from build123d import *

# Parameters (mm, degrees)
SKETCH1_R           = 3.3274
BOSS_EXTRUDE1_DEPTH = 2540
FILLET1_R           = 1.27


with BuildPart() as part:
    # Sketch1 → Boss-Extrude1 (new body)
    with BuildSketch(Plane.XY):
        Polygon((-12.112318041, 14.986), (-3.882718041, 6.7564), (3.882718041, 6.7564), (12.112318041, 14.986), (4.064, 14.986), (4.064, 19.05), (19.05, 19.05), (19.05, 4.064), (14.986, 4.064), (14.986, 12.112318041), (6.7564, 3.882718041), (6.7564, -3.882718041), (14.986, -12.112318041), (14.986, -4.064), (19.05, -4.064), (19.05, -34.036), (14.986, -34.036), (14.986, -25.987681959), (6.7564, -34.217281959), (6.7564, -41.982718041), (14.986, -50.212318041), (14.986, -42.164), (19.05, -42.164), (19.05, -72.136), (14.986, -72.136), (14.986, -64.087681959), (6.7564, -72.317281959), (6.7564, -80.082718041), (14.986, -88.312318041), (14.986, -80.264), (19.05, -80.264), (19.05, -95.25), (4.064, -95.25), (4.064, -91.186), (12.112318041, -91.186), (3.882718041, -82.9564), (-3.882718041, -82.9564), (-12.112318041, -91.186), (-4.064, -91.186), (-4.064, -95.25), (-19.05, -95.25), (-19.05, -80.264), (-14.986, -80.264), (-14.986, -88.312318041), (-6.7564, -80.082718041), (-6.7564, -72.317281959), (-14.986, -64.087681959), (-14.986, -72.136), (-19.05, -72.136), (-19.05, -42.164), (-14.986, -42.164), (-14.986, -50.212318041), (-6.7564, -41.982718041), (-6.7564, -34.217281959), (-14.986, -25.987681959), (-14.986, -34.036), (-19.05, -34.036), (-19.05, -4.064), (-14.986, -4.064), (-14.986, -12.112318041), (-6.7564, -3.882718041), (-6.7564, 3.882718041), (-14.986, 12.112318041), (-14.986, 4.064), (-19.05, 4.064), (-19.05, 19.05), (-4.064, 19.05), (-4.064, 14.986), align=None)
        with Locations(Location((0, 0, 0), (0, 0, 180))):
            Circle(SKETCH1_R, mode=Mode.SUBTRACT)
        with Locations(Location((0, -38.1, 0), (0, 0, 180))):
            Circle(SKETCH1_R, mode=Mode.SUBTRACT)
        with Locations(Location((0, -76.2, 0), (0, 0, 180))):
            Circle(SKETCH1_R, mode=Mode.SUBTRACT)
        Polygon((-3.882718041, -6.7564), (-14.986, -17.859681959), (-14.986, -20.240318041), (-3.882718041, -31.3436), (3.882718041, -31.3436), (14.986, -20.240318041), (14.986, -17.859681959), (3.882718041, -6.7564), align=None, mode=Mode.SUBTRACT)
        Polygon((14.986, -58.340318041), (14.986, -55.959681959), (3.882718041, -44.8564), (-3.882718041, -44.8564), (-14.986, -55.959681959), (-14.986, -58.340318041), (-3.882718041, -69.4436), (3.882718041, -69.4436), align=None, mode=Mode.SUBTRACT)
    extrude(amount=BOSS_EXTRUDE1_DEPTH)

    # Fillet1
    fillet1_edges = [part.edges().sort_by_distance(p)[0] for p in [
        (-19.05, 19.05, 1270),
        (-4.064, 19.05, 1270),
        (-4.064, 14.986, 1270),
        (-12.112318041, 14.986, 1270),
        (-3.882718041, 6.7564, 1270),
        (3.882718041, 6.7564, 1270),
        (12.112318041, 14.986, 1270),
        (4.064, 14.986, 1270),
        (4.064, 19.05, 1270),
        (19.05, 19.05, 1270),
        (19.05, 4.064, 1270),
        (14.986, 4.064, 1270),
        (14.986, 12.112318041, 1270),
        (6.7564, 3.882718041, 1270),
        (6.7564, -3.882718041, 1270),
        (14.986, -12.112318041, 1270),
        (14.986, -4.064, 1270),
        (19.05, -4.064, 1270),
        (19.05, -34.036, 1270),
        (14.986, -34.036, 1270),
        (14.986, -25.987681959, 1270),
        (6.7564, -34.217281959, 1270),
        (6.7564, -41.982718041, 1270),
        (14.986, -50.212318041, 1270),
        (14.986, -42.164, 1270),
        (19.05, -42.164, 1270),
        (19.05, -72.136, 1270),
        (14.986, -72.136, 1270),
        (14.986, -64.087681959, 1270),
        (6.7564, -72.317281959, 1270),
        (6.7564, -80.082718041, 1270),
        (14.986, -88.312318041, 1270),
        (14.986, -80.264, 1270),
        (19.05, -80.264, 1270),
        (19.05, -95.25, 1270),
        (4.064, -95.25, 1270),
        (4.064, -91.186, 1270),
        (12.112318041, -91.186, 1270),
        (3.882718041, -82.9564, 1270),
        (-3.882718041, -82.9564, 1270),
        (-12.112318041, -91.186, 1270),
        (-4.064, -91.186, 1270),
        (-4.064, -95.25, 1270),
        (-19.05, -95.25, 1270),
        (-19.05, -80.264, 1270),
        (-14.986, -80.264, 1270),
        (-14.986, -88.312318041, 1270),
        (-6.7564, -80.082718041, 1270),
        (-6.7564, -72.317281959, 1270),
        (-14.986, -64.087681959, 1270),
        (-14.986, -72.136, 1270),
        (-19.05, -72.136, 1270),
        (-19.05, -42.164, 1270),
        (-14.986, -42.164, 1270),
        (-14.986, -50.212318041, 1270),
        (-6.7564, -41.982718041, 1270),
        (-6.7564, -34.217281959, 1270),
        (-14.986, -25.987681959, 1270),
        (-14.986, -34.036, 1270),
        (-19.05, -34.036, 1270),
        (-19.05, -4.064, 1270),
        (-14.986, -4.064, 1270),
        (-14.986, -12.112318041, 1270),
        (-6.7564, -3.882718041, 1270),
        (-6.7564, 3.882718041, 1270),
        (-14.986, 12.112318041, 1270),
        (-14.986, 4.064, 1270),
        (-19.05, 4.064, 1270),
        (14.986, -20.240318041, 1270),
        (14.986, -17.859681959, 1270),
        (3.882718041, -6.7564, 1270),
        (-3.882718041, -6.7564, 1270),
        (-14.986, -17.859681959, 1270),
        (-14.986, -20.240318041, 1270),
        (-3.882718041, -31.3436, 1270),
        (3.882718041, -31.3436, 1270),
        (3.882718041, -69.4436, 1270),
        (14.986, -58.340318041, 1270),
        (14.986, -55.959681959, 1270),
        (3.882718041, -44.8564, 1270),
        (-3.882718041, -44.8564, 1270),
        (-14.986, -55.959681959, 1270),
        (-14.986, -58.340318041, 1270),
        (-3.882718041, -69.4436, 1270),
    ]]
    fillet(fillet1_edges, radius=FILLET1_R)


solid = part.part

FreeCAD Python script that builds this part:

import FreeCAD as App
import Part
import Sketcher
from FreeCAD import Vector
Q = App.Units.Quantity


def edges_at(feature, points):
    """Names of the edges that pass closest to the given points."""
    edges = feature.Shape.Edges
    near = lambda p: min(range(len(edges)), key=lambda i: edges[i].distToShape(Part.Vertex(*p))[0])
    return sorted({f"Edge{near(p) + 1}" for p in points})

doc = App.newDocument("Part")
params = doc.addObject("Spreadsheet::Sheet", "Params")
for row, (alias, value) in enumerate([
    ("sketch1_diameter", "0.262 in"),
    ("sketch1_width", "0.59 in"),
    ("sketch1_width2", "0.16 in"),
    ("sketch1_height", "1.18 in"),
    ("pad1_length", "100 in"),
    ("fillet_radius", "0.05 in"),
], start=1):
    params.set(f"A{row}", alias)
    params.set(f"B{row}", "=" + value)
    params.setAlias(f"B{row}", alias)

body = doc.addObject("PartDesign::Body", "Body")

sketch1 = doc.addObject("Sketcher::SketchObject", "Sketch")
body.addObject(sketch1)
sketch1.AttachmentSupport = (doc.XY_Plane, [""])
sketch1.MapMode = "FlatFace"
sketch1.addGeometry(Part.LineSegment(Vector(-3.882718, 6.7564, 0), Vector(-12.112318, 14.986, 0)), False)
sketch1.addGeometry(Part.LineSegment(Vector(-12.112318, 14.986, 0), Vector(-4.064, 14.986, 0)), False)
sketch1.addGeometry(Part.LineSegment(Vector(-4.064, 14.986, 0), Vector(-4.064, 19.05, 0)), False)
sketch1.addGeometry(Part.LineSegment(Vector(-4.064, 19.05, 0), Vector(-19.05, 19.05, 0)), False)
sketch1.addGeometry(Part.LineSegment(Vector(-19.05, 19.05, 0), Vector(-19.05, 4.064, 0)), False)
sketch1.addGeometry(Part.LineSegment(Vector(-19.05, 4.064, 0), Vector(-14.986, 4.064, 0)), False)
sketch1.addGeometry(Part.LineSegment(Vector(-14.986, 4.064, 0), Vector(-14.986, 12.112318, 0)), False)
sketch1.addGeometry(Part.LineSegment(Vector(-14.986, 12.112318, 0), Vector(-6.7564, 3.882718, 0)), False)
sketch1.addGeometry(Part.LineSegment(Vector(-6.7564, 3.882718, 0), Vector(-6.7564, -3.882718, 0)), False)
sketch1.addGeometry(Part.LineSegment(Vector(-6.7564, -3.882718, 0), Vector(-14.986, -12.112318, 0)), False)
sketch1.addGeometry(Part.LineSegment(Vector(-14.986, -12.112318, 0), Vector(-14.986, -4.064, 0)), False)
sketch1.addGeometry(Part.LineSegment(Vector(-14.986, -4.064, 0), Vector(-19.05, -4.064, 0)), False)
sketch1.addGeometry(Part.LineSegment(Vector(-19.05, -4.064, 0), Vector(-19.05, -34.036, 0)), False)
sketch1.addGeometry(Part.LineSegment(Vector(-19.05, -34.036, 0), Vector(-14.986, -34.036, 0)), False)
sketch1.addGeometry(Part.LineSegment(Vector(-14.986, -34.036, 0), Vector(-14.986, -25.987682, 0)), False)
sketch1.addGeometry(Part.LineSegment(Vector(-14.986, -25.987682, 0), Vector(-6.7564, -34.217282, 0)), False)
sketch1.addGeometry(Part.LineSegment(Vector(-6.7564, -34.217282, 0), Vector(-6.7564, -41.982718, 0)), False)
sketch1.addGeometry(Part.LineSegment(Vector(-6.7564, -41.982718, 0), Vector(-14.986, -50.212318, 0)), False)
sketch1.addGeometry(Part.LineSegment(Vector(-14.986, -50.212318, 0), Vector(-14.986, -42.164, 0)), False)
sketch1.addGeometry(Part.LineSegment(Vector(-14.986, -42.164, 0), Vector(-19.05, -42.164, 0)), False)
sketch1.addGeometry(Part.LineSegment(Vector(-19.05, -42.164, 0), Vector(-19.05, -72.136, 0)), False)
sketch1.addGeometry(Part.LineSegment(Vector(-19.05, -72.136, 0), Vector(-14.986, -72.136, 0)), False)
sketch1.addGeometry(Part.LineSegment(Vector(-14.986, -72.136, 0), Vector(-14.986, -64.087682, 0)), False)
sketch1.addGeometry(Part.LineSegment(Vector(-14.986, -64.087682, 0), Vector(-6.7564, -72.317282, 0)), False)
sketch1.addGeometry(Part.LineSegment(Vector(-6.7564, -72.317282, 0), Vector(-6.7564, -80.082718, 0)), False)
sketch1.addGeometry(Part.LineSegment(Vector(-6.7564, -80.082718, 0), Vector(-14.986, -88.312318, 0)), False)
sketch1.addGeometry(Part.LineSegment(Vector(-14.986, -88.312318, 0), Vector(-14.986, -80.264, 0)), False)
sketch1.addGeometry(Part.LineSegment(Vector(-14.986, -80.264, 0), Vector(-19.05, -80.264, 0)), False)
sketch1.addGeometry(Part.LineSegment(Vector(-19.05, -80.264, 0), Vector(-19.05, -95.25, 0)), False)
sketch1.addGeometry(Part.LineSegment(Vector(-19.05, -95.25, 0), Vector(-4.064, -95.25, 0)), False)
sketch1.addGeometry(Part.LineSegment(Vector(-4.064, -95.25, 0), Vector(-4.064, -91.186, 0)), False)
sketch1.addGeometry(Part.LineSegment(Vector(-4.064, -91.186, 0), Vector(-12.112318, -91.186, 0)), False)
sketch1.addGeometry(Part.LineSegment(Vector(-12.112318, -91.186, 0), Vector(-3.882718, -82.9564, 0)), False)
sketch1.addGeometry(Part.LineSegment(Vector(-3.882718, -82.9564, 0), Vector(3.882718, -82.9564, 0)), False)
sketch1.addGeometry(Part.LineSegment(Vector(3.882718, -82.9564, 0), Vector(12.112318, -91.186, 0)), False)
sketch1.addGeometry(Part.LineSegment(Vector(12.112318, -91.186, 0), Vector(4.064, -91.186, 0)), False)
sketch1.addGeometry(Part.LineSegment(Vector(4.064, -91.186, 0), Vector(4.064, -95.25, 0)), False)
sketch1.addGeometry(Part.LineSegment(Vector(4.064, -95.25, 0), Vector(19.05, -95.25, 0)), False)
sketch1.addGeometry(Part.LineSegment(Vector(19.05, -95.25, 0), Vector(19.05, -80.264, 0)), False)
sketch1.addGeometry(Part.LineSegment(Vector(19.05, -80.264, 0), Vector(14.986, -80.264, 0)), False)
sketch1.addGeometry(Part.LineSegment(Vector(14.986, -80.264, 0), Vector(14.986, -88.312318, 0)), False)
sketch1.addGeometry(Part.LineSegment(Vector(14.986, -88.312318, 0), Vector(6.7564, -80.082718, 0)), False)
sketch1.addGeometry(Part.LineSegment(Vector(6.7564, -80.082718, 0), Vector(6.7564, -72.317282, 0)), False)
sketch1.addGeometry(Part.LineSegment(Vector(6.7564, -72.317282, 0), Vector(14.986, -64.087682, 0)), False)
sketch1.addGeometry(Part.LineSegment(Vector(14.986, -64.087682, 0), Vector(14.986, -72.136, 0)), False)
sketch1.addGeometry(Part.LineSegment(Vector(14.986, -72.136, 0), Vector(19.05, -72.136, 0)), False)
sketch1.addGeometry(Part.LineSegment(Vector(19.05, -72.136, 0), Vector(19.05, -42.164, 0)), False)
sketch1.addGeometry(Part.LineSegment(Vector(19.05, -42.164, 0), Vector(14.986, -42.164, 0)), False)
sketch1.addGeometry(Part.LineSegment(Vector(14.986, -42.164, 0), Vector(14.986, -50.212318, 0)), False)
sketch1.addGeometry(Part.LineSegment(Vector(14.986, -50.212318, 0), Vector(6.7564, -41.982718, 0)), False)
sketch1.addGeometry(Part.LineSegment(Vector(6.7564, -41.982718, 0), Vector(6.7564, -34.217282, 0)), False)
sketch1.addGeometry(Part.LineSegment(Vector(6.7564, -34.217282, 0), Vector(14.986, -25.987682, 0)), False)
sketch1.addGeometry(Part.LineSegment(Vector(14.986, -25.987682, 0), Vector(14.986, -34.036, 0)), False)
sketch1.addGeometry(Part.LineSegment(Vector(14.986, -34.036, 0), Vector(19.05, -34.036, 0)), False)
sketch1.addGeometry(Part.LineSegment(Vector(19.05, -34.036, 0), Vector(19.05, -4.064, 0)), False)
sketch1.addGeometry(Part.LineSegment(Vector(19.05, -4.064, 0), Vector(14.986, -4.064, 0)), False)
sketch1.addGeometry(Part.LineSegment(Vector(14.986, -4.064, 0), Vector(14.986, -12.112318, 0)), False)
sketch1.addGeometry(Part.LineSegment(Vector(14.986, -12.112318, 0), Vector(6.7564, -3.882718, 0)), False)
sketch1.addGeometry(Part.LineSegment(Vector(6.7564, -3.882718, 0), Vector(6.7564, 3.882718, 0)), False)
sketch1.addGeometry(Part.LineSegment(Vector(6.7564, 3.882718, 0), Vector(14.986, 12.112318, 0)), False)
sketch1.addGeometry(Part.LineSegment(Vector(14.986, 12.112318, 0), Vector(14.986, 4.064, 0)), False)
sketch1.addGeometry(Part.LineSegment(Vector(14.986, 4.064, 0), Vector(19.05, 4.064, 0)), False)
sketch1.addGeometry(Part.LineSegment(Vector(19.05, 4.064, 0), Vector(19.05, 19.05, 0)), False)
sketch1.addGeometry(Part.LineSegment(Vector(19.05, 19.05, 0), Vector(4.064, 19.05, 0)), False)
sketch1.addGeometry(Part.LineSegment(Vector(4.064, 19.05, 0), Vector(4.064, 14.986, 0)), False)
sketch1.addGeometry(Part.LineSegment(Vector(4.064, 14.986, 0), Vector(12.112318, 14.986, 0)), False)
sketch1.addGeometry(Part.LineSegment(Vector(12.112318, 14.986, 0), Vector(3.882718, 6.7564, 0)), False)
sketch1.addGeometry(Part.LineSegment(Vector(3.882718, 6.7564, 0), Vector(-3.882718, 6.7564, 0)), False)
sketch1.addGeometry(Part.Circle(Vector(0, -76.2, 0), Vector(0, 0, 1), 3.3274), False)
sketch1.addGeometry(Part.LineSegment(Vector(14.986, -58.340318, 0), Vector(3.882718, -69.4436, 0)), False)
sketch1.addGeometry(Part.LineSegment(Vector(3.882718, -69.4436, 0), Vector(-3.882718, -69.4436, 0)), False)
sketch1.addGeometry(Part.LineSegment(Vector(-3.882718, -69.4436, 0), Vector(-14.986, -58.340318, 0)), False)
sketch1.addGeometry(Part.LineSegment(Vector(-14.986, -58.340318, 0), Vector(-14.986, -55.959682, 0)), False)
sketch1.addGeometry(Part.LineSegment(Vector(-14.986, -55.959682, 0), Vector(-3.882718, -44.8564, 0)), False)
sketch1.addGeometry(Part.LineSegment(Vector(-3.882718, -44.8564, 0), Vector(3.882718, -44.8564, 0)), False)
sketch1.addGeometry(Part.LineSegment(Vector(3.882718, -44.8564, 0), Vector(14.986, -55.959682, 0)), False)
sketch1.addGeometry(Part.LineSegment(Vector(14.986, -55.959682, 0), Vector(14.986, -58.340318, 0)), False)
sketch1.addGeometry(Part.Circle(Vector(0, -38.1, 0), Vector(0, 0, 1), 3.3274), False)
sketch1.addGeometry(Part.LineSegment(Vector(-3.882718, -6.7564, 0), Vector(3.882718, -6.7564, 0)), False)
sketch1.addGeometry(Part.LineSegment(Vector(3.882718, -6.7564, 0), Vector(14.986, -17.859682, 0)), False)
sketch1.addGeometry(Part.LineSegment(Vector(14.986, -17.859682, 0), Vector(14.986, -20.240318, 0)), False)
sketch1.addGeometry(Part.LineSegment(Vector(14.986, -20.240318, 0), Vector(3.882718, -31.3436, 0)), False)
sketch1.addGeometry(Part.LineSegment(Vector(3.882718, -31.3436, 0), Vector(-3.882718, -31.3436, 0)), False)
sketch1.addGeometry(Part.LineSegment(Vector(-3.882718, -31.3436, 0), Vector(-14.986, -20.240318, 0)), False)
sketch1.addGeometry(Part.LineSegment(Vector(-14.986, -20.240318, 0), Vector(-14.986, -17.859682, 0)), False)
sketch1.addGeometry(Part.LineSegment(Vector(-14.986, -17.859682, 0), Vector(-3.882718, -6.7564, 0)), False)
sketch1.addGeometry(Part.Circle(Vector(0, 0, 0), Vector(0, 0, 1), 3.3274), False)
sketch1.addConstraint(Sketcher.Constraint("Coincident", 0, 2, 1, 1))
sketch1.addConstraint(Sketcher.Constraint("Coincident", 1, 2, 2, 1))
sketch1.addConstraint(Sketcher.Constraint("Coincident", 2, 2, 3, 1))
sketch1.addConstraint(Sketcher.Constraint("Coincident", 3, 2, 4, 1))
sketch1.addConstraint(Sketcher.Constraint("Coincident", 4, 2, 5, 1))
sketch1.addConstraint(Sketcher.Constraint("Coincident", 5, 2, 6, 1))
sketch1.addConstraint(Sketcher.Constraint("Coincident", 6, 2, 7, 1))
sketch1.addConstraint(Sketcher.Constraint("Coincident", 7, 2, 8, 1))
sketch1.addConstraint(Sketcher.Constraint("Coincident", 8, 2, 9, 1))
sketch1.addConstraint(Sketcher.Constraint("Coincident", 9, 2, 10, 1))
sketch1.addConstraint(Sketcher.Constraint("Coincident", 10, 2, 11, 1))
sketch1.addConstraint(Sketcher.Constraint("Coincident", 11, 2, 12, 1))
sketch1.addConstraint(Sketcher.Constraint("Coincident", 12, 2, 13, 1))
sketch1.addConstraint(Sketcher.Constraint("Coincident", 13, 2, 14, 1))
sketch1.addConstraint(Sketcher.Constraint("Coincident", 14, 2, 15, 1))
sketch1.addConstraint(Sketcher.Constraint("Coincident", 15, 2, 16, 1))
sketch1.addConstraint(Sketcher.Constraint("Coincident", 16, 2, 17, 1))
sketch1.addConstraint(Sketcher.Constraint("Coincident", 17, 2, 18, 1))
sketch1.addConstraint(Sketcher.Constraint("Coincident", 18, 2, 19, 1))
sketch1.addConstraint(Sketcher.Constraint("Coincident", 19, 2, 20, 1))
sketch1.addConstraint(Sketcher.Constraint("Coincident", 20, 2, 21, 1))
sketch1.addConstraint(Sketcher.Constraint("Coincident", 21, 2, 22, 1))
sketch1.addConstraint(Sketcher.Constraint("Coincident", 22, 2, 23, 1))
sketch1.addConstraint(Sketcher.Constraint("Coincident", 23, 2, 24, 1))
sketch1.addConstraint(Sketcher.Constraint("Coincident", 24, 2, 25, 1))
sketch1.addConstraint(Sketcher.Constraint("Coincident", 25, 2, 26, 1))
sketch1.addConstraint(Sketcher.Constraint("Coincident", 26, 2, 27, 1))
sketch1.addConstraint(Sketcher.Constraint("Coincident", 27, 2, 28, 1))
sketch1.addConstraint(Sketcher.Constraint("Coincident", 28, 2, 29, 1))
sketch1.addConstraint(Sketcher.Constraint("Coincident", 29, 2, 30, 1))
sketch1.addConstraint(Sketcher.Constraint("Coincident", 30, 2, 31, 1))
sketch1.addConstraint(Sketcher.Constraint("Coincident", 31, 2, 32, 1))
sketch1.addConstraint(Sketcher.Constraint("Coincident", 32, 2, 33, 1))
sketch1.addConstraint(Sketcher.Constraint("Coincident", 33, 2, 34, 1))
sketch1.addConstraint(Sketcher.Constraint("Coincident", 34, 2, 35, 1))
sketch1.addConstraint(Sketcher.Constraint("Coincident", 35, 2, 36, 1))
sketch1.addConstraint(Sketcher.Constraint("Coincident", 36, 2, 37, 1))
sketch1.addConstraint(Sketcher.Constraint("Coincident", 37, 2, 38, 1))
sketch1.addConstraint(Sketcher.Constraint("Coincident", 38, 2, 39, 1))
sketch1.addConstraint(Sketcher.Constraint("Coincident", 39, 2, 40, 1))
sketch1.addConstraint(Sketcher.Constraint("Coincident", 40, 2, 41, 1))
sketch1.addConstraint(Sketcher.Constraint("Coincident", 41, 2, 42, 1))
sketch1.addConstraint(Sketcher.Constraint("Coincident", 42, 2, 43, 1))
sketch1.addConstraint(Sketcher.Constraint("Coincident", 43, 2, 44, 1))
sketch1.addConstraint(Sketcher.Constraint("Coincident", 44, 2, 45, 1))
sketch1.addConstraint(Sketcher.Constraint("Coincident", 45, 2, 46, 1))
sketch1.addConstraint(Sketcher.Constraint("Coincident", 46, 2, 47, 1))
sketch1.addConstraint(Sketcher.Constraint("Coincident", 47, 2, 48, 1))
sketch1.addConstraint(Sketcher.Constraint("Coincident", 48, 2, 49, 1))
sketch1.addConstraint(Sketcher.Constraint("Coincident", 49, 2, 50, 1))
sketch1.addConstraint(Sketcher.Constraint("Coincident", 50, 2, 51, 1))
sketch1.addConstraint(Sketcher.Constraint("Coincident", 51, 2, 52, 1))
sketch1.addConstraint(Sketcher.Constraint("Coincident", 52, 2, 53, 1))
sketch1.addConstraint(Sketcher.Constraint("Coincident", 53, 2, 54, 1))
sketch1.addConstraint(Sketcher.Constraint("Coincident", 54, 2, 55, 1))
sketch1.addConstraint(Sketcher.Constraint("Coincident", 55, 2, 56, 1))
sketch1.addConstraint(Sketcher.Constraint("Coincident", 56, 2, 57, 1))
sketch1.addConstraint(Sketcher.Constraint("Coincident", 57, 2, 58, 1))
sketch1.addConstraint(Sketcher.Constraint("Coincident", 58, 2, 59, 1))
sketch1.addConstraint(Sketcher.Constraint("Coincident", 59, 2, 60, 1))
sketch1.addConstraint(Sketcher.Constraint("Coincident", 60, 2, 61, 1))
sketch1.addConstraint(Sketcher.Constraint("Coincident", 61, 2, 62, 1))
sketch1.addConstraint(Sketcher.Constraint("Coincident", 62, 2, 63, 1))
sketch1.addConstraint(Sketcher.Constraint("Coincident", 63, 2, 64, 1))
sketch1.addConstraint(Sketcher.Constraint("Coincident", 64, 2, 65, 1))
sketch1.addConstraint(Sketcher.Constraint("Coincident", 65, 2, 66, 1))
sketch1.addConstraint(Sketcher.Constraint("Coincident", 66, 2, 67, 1))
sketch1.addConstraint(Sketcher.Constraint("Coincident", 67, 2, 0, 1))
sketch1.addConstraint(Sketcher.Constraint("Coincident", 69, 2, 70, 1))
sketch1.addConstraint(Sketcher.Constraint("Coincident", 70, 2, 71, 1))
sketch1.addConstraint(Sketcher.Constraint("Coincident", 71, 2, 72, 1))
sketch1.addConstraint(Sketcher.Constraint("Coincident", 72, 2, 73, 1))
sketch1.addConstraint(Sketcher.Constraint("Coincident", 73, 2, 74, 1))
sketch1.addConstraint(Sketcher.Constraint("Coincident", 74, 2, 75, 1))
sketch1.addConstraint(Sketcher.Constraint("Coincident", 75, 2, 76, 1))
sketch1.addConstraint(Sketcher.Constraint("Coincident", 76, 2, 69, 1))
sketch1.addConstraint(Sketcher.Constraint("Coincident", 78, 2, 79, 1))
sketch1.addConstraint(Sketcher.Constraint("Coincident", 79, 2, 80, 1))
sketch1.addConstraint(Sketcher.Constraint("Coincident", 80, 2, 81, 1))
sketch1.addConstraint(Sketcher.Constraint("Coincident", 81, 2, 82, 1))
sketch1.addConstraint(Sketcher.Constraint("Coincident", 82, 2, 83, 1))
sketch1.addConstraint(Sketcher.Constraint("Coincident", 83, 2, 84, 1))
sketch1.addConstraint(Sketcher.Constraint("Coincident", 84, 2, 85, 1))
sketch1.addConstraint(Sketcher.Constraint("Coincident", 85, 2, 78, 1))
sketch1.addConstraint(Sketcher.Constraint("Horizontal", 1))
sketch1.addConstraint(Sketcher.Constraint("Vertical", 2))
sketch1.addConstraint(Sketcher.Constraint("Horizontal", 3))
sketch1.addConstraint(Sketcher.Constraint("Vertical", 4))
sketch1.addConstraint(Sketcher.Constraint("Horizontal", 5))
sketch1.addConstraint(Sketcher.Constraint("Vertical", 6))
sketch1.addConstraint(Sketcher.Constraint("Vertical", 8))
sketch1.addConstraint(Sketcher.Constraint("Vertical", 10))
sketch1.addConstraint(Sketcher.Constraint("Horizontal", 11))
sketch1.addConstraint(Sketcher.Constraint("Vertical", 12))
sketch1.addConstraint(Sketcher.Constraint("Horizontal", 13))
sketch1.addConstraint(Sketcher.Constraint("Vertical", 14))
sketch1.addConstraint(Sketcher.Constraint("Vertical", 16))
sketch1.addConstraint(Sketcher.Constraint("Vertical", 18))
sketch1.addConstraint(Sketcher.Constraint("Horizontal", 19))
sketch1.addConstraint(Sketcher.Constraint("Vertical", 20))
sketch1.addConstraint(Sketcher.Constraint("Horizontal", 21))
sketch1.addConstraint(Sketcher.Constraint("Vertical", 22))
sketch1.addConstraint(Sketcher.Constraint("Vertical", 24))
sketch1.addConstraint(Sketcher.Constraint("Vertical", 26))
sketch1.addConstraint(Sketcher.Constraint("Horizontal", 27))
sketch1.addConstraint(Sketcher.Constraint("Vertical", 28))
sketch1.addConstraint(Sketcher.Constraint("Horizontal", 29))
sketch1.addConstraint(Sketcher.Constraint("Vertical", 30))
sketch1.addConstraint(Sketcher.Constraint("Horizontal", 31))
sketch1.addConstraint(Sketcher.Constraint("Horizontal", 33))
sketch1.addConstraint(Sketcher.Constraint("Horizontal", 35))
sketch1.addConstraint(Sketcher.Constraint("Vertical", 36))
sketch1.addConstraint(Sketcher.Constraint("Horizontal", 37))
sketch1.addConstraint(Sketcher.Constraint("Vertical", 38))
sketch1.addConstraint(Sketcher.Constraint("Horizontal", 39))
sketch1.addConstraint(Sketcher.Constraint("Vertical", 40))
sketch1.addConstraint(Sketcher.Constraint("Vertical", 42))
sketch1.addConstraint(Sketcher.Constraint("Vertical", 44))
sketch1.addConstraint(Sketcher.Constraint("Horizontal", 45))
sketch1.addConstraint(Sketcher.Constraint("Vertical", 46))
sketch1.addConstraint(Sketcher.Constraint("Horizontal", 47))
sketch1.addConstraint(Sketcher.Constraint("Vertical", 48))
sketch1.addConstraint(Sketcher.Constraint("Vertical", 50))
sketch1.addConstraint(Sketcher.Constraint("Vertical", 52))
sketch1.addConstraint(Sketcher.Constraint("Horizontal", 53))
sketch1.addConstraint(Sketcher.Constraint("Vertical", 54))
sketch1.addConstraint(Sketcher.Constraint("Horizontal", 55))
sketch1.addConstraint(Sketcher.Constraint("Vertical", 56))
sketch1.addConstraint(Sketcher.Constraint("Vertical", 58))
sketch1.addConstraint(Sketcher.Constraint("Vertical", 60))
sketch1.addConstraint(Sketcher.Constraint("Horizontal", 61))
sketch1.addConstraint(Sketcher.Constraint("Vertical", 62))
sketch1.addConstraint(Sketcher.Constraint("Horizontal", 63))
sketch1.addConstraint(Sketcher.Constraint("Vertical", 64))
sketch1.addConstraint(Sketcher.Constraint("Horizontal", 65))
sketch1.addConstraint(Sketcher.Constraint("Horizontal", 67))
sketch1.addConstraint(Sketcher.Constraint("Horizontal", 70))
sketch1.addConstraint(Sketcher.Constraint("Vertical", 72))
sketch1.addConstraint(Sketcher.Constraint("Horizontal", 74))
sketch1.addConstraint(Sketcher.Constraint("Vertical", 76))
sketch1.addConstraint(Sketcher.Constraint("Horizontal", 78))
sketch1.addConstraint(Sketcher.Constraint("Vertical", 80))
sketch1.addConstraint(Sketcher.Constraint("Horizontal", 82))
sketch1.addConstraint(Sketcher.Constraint("Vertical", 84))
sketch1.addConstraint(Sketcher.Constraint("Coincident", 86, 3, -1, 1))
sketch1.addConstraint(Sketcher.Constraint("Equal", 68, 77))
sketch1.addConstraint(Sketcher.Constraint("Equal", 77, 86))
sketch1.addConstraint(Sketcher.Constraint("Symmetric", 4, 2, 54, 2, -1, 1))
sketch1.addConstraint(Sketcher.Constraint("Symmetric", 6, 2, 56, 2, -1, 1))
sketch1.addConstraint(Sketcher.Constraint("Symmetric", 7, 2, 57, 2, -1, 1))
sketch1.addConstraint(Sketcher.Constraint("Symmetric", 9, 2, 59, 2, -1, 1))
sketch1.addConstraint(Sketcher.Constraint("Symmetric", 11, 2, 61, 2, -1, 1))
sketch1.addConstraint(Sketcher.Constraint("Symmetric", 67, 2, 78, 2, -1, 1))
sketch1.addConstraint(Sketcher.Constraint("Symmetric", 31, 2, 34, 2, -2))
sketch1.addConstraint(Sketcher.Constraint("Symmetric", 29, 2, 36, 2, -2))
sketch1.addConstraint(Sketcher.Constraint("Symmetric", 27, 2, 38, 2, -2))
sketch1.addConstraint(Sketcher.Constraint("Symmetric", 25, 2, 40, 2, -2))
sketch1.addConstraint(Sketcher.Constraint("Symmetric", 24, 2, 41, 2, -2))
sketch1.addConstraint(Sketcher.Constraint("Symmetric", 22, 2, 43, 2, -2))
sketch1.addConstraint(Sketcher.Constraint("Symmetric", 20, 2, 45, 2, -2))
sketch1.addConstraint(Sketcher.Constraint("Symmetric", 18, 2, 47, 2, -2))
sketch1.addConstraint(Sketcher.Constraint("Symmetric", 16, 2, 49, 2, -2))
sketch1.addConstraint(Sketcher.Constraint("Symmetric", 14, 2, 51, 2, -2))
sketch1.addConstraint(Sketcher.Constraint("Symmetric", 12, 2, 53, 2, -2))
sketch1.addConstraint(Sketcher.Constraint("Symmetric", 10, 2, 55, 2, -2))
sketch1.addConstraint(Sketcher.Constraint("Symmetric", 2, 2, 63, 2, -2))
sketch1.addConstraint(Sketcher.Constraint("Symmetric", 0, 2, 65, 2, -2))
sketch1.addConstraint(Sketcher.Constraint("Symmetric", 72, 2, 75, 2, -2))
sketch1.addConstraint(Sketcher.Constraint("Symmetric", 80, 2, 83, 2, -2))
sketch1.addConstraint(Sketcher.Constraint("PointOnObject", 68, 3, -2))
sketch1.addConstraint(Sketcher.Constraint("PointOnObject", 77, 3, -2))
sketch1.addConstraint(Sketcher.Constraint("Parallel", 0, 7))
sketch1.addConstraint(Sketcher.Constraint("Perpendicular", 7, 9))
sketch1.addConstraint(Sketcher.Constraint("Perpendicular", 9, 15))
sketch1.addConstraint(Sketcher.Constraint("Perpendicular", 15, 17))
sketch1.addConstraint(Sketcher.Constraint("Perpendicular", 17, 23))
sketch1.addConstraint(Sketcher.Constraint("Perpendicular", 23, 25))
sketch1.addConstraint(Sketcher.Constraint("Parallel", 25, 32))
sketch1.addConstraint(Sketcher.Constraint("Perpendicular", 32, 34))
sketch1.addConstraint(Sketcher.Constraint("Parallel", 34, 41))
sketch1.addConstraint(Sketcher.Constraint("Perpendicular", 41, 43))
sketch1.addConstraint(Sketcher.Constraint("Perpendicular", 43, 49))
sketch1.addConstraint(Sketcher.Constraint("Perpendicular", 49, 51))
sketch1.addConstraint(Sketcher.Constraint("Perpendicular", 57, 59))
sketch1.addConstraint(Sketcher.Constraint("Parallel", 59, 66))
sketch1.addConstraint(Sketcher.Constraint("Parallel", 66, 69))
sketch1.addConstraint(Sketcher.Constraint("Perpendicular", 69, 71))
sketch1.addConstraint(Sketcher.Constraint("Perpendicular", 71, 73))
sketch1.addConstraint(Sketcher.Constraint("Perpendicular", 73, 75))
sketch1.addConstraint(Sketcher.Constraint("Parallel", 75, 79))
sketch1.addConstraint(Sketcher.Constraint("Perpendicular", 79, 81))
sketch1.addConstraint(Sketcher.Constraint("Perpendicular", 81, 83))
sketch1.addConstraint(Sketcher.Constraint("Perpendicular", 83, 85))
sketch1.addConstraint(Sketcher.Constraint("Horizontal", 9, 2, 56, 2))
sketch1.addConstraint(Sketcher.Constraint("Horizontal", 71, 2, 76, 2))
sketch1.addConstraint(Sketcher.Constraint("Horizontal", 79, 2, 84, 2))
sketch1.addConstraint(Sketcher.Constraint("Vertical", 10, 2, 13, 2))
sketch1.addConstraint(Sketcher.Constraint("Vertical", 8, 2, 15, 2))
sketch1.addConstraint(Sketcher.Constraint("Vertical", 14, 2, 17, 2))
sketch1.addConstraint(Sketcher.Constraint("Vertical", 12, 2, 19, 2))
sketch1.addConstraint(Sketcher.Constraint("Vertical", 18, 2, 21, 2))
sketch1.addConstraint(Sketcher.Constraint("Vertical", 16, 2, 23, 2))
sketch1.addConstraint(Sketcher.Constraint("Vertical", 22, 2, 25, 2))
sketch1.addConstraint(Sketcher.Constraint("Vertical", 20, 2, 27, 2))
sketch1.addConstraint(Sketcher.Constraint("Vertical", 2, 2, 29, 2))
sketch1.addConstraint(Sketcher.Constraint("Vertical", 0, 2, 31, 2))
sketch1.addConstraint(Sketcher.Constraint("Vertical", 33, 2, 66, 2))
sketch1.addConstraint(Sketcher.Constraint("Vertical", 66, 2, 69, 2))
sketch1.addConstraint(Sketcher.Constraint("Vertical", 26, 2, 71, 2))
sketch1.addConstraint(Sketcher.Constraint("Vertical", 70, 2, 73, 2))
sketch1.addConstraint(Sketcher.Constraint("Vertical", 76, 2, 79, 2))
sketch1.addConstraint(Sketcher.Constraint("Vertical", 78, 2, 81, 2))
sketch1.addConstraint(Sketcher.Constraint("Equal", 61, 2))
sketch1.addConstraint(Sketcher.Constraint("Equal", 63, 4))
sketch1.addConstraint(Sketcher.Constraint("Equal", 65, 6))
sketch1.addConstraint(Sketcher.Constraint("Equal", 82, 8))
sketch1.addConstraint(Sketcher.Constraint("Equal", 10, 14))
sketch1.addConstraint(Sketcher.Constraint("Equal", 8, 16))
sketch1.addConstraint(Sketcher.Constraint("Equal", 14, 18))
sketch1.addConstraint(Sketcher.Constraint("Equal", 12, 20))
sketch1.addConstraint(Sketcher.Constraint("Equal", 18, 22))
sketch1.addConstraint(Sketcher.Constraint("Equal", 16, 24))
sketch1.addConstraint(Sketcher.Constraint("Equal", 22, 26))
sketch1.addConstraint(Sketcher.Constraint("Equal", 4, 28))
sketch1.addConstraint(Sketcher.Constraint("Equal", 2, 30))
sketch1.addConstraint(Sketcher.Constraint("Equal", 76, 80))
sketch1.addConstraint(Sketcher.Constraint("Equal", 0, 7))
sketch1.addConstraint(Sketcher.Constraint("Diameter", 68, Q("0.262 in")))
sketch1.addConstraint(Sketcher.Constraint("DistanceY", 68, 3, -1, 1, Q("3 in")))
sketch1.addConstraint(Sketcher.Constraint("DistanceX", 3, 2, 3, 1, Q("0.59 in")))
sketch1.addConstraint(Sketcher.Constraint("DistanceX", 5, 1, 5, 2, Q("0.16 in")))
sketch1.addConstraint(Sketcher.Constraint("DistanceY", 12, 2, 12, 1, Q("1.18 in")))
sketch1.addConstraint(Sketcher.Constraint("DistanceY", 77, 3, -1, 1, Q("1.5 in")))
sketch1.addConstraint(Sketcher.Constraint("DistanceY", -1, 1, 0, 2, Q("0.59 in")))
sketch1.addConstraint(Sketcher.Constraint("DistanceX", 7, 2, -1, 1, Q("0.266 in")))
sketch1.addConstraint(Sketcher.Constraint("DistanceY", 69, 2, -1, 1, Q("2.734 in")))
sketch1.addConstraint(Sketcher.Constraint("DistanceY", 73, 2, -1, 1, Q("1.766 in")))
sketch1.addConstraint(Sketcher.Constraint("DistanceX", 1, 1, 1, 2, 8.048318))
sketch1.setExpression("Constraints[227]", "Params.sketch1_diameter")
sketch1.setExpression("Constraints[229]", "Params.sketch1_width")
sketch1.setExpression("Constraints[230]", "Params.sketch1_width2")
sketch1.setExpression("Constraints[231]", "Params.sketch1_height")
pad1 = doc.addObject("PartDesign::Pad", "Pad")
body.addObject(pad1)
pad1.Profile = sketch1
pad1.setExpression("Length", "Params.pad1_length")
doc.recompute()

fillet = doc.addObject("PartDesign::Fillet", "Fillet")
body.addObject(fillet)
fillet.Base = (pad1, edges_at(pad1, [
    (-19.05, 19.05, 1270),
    (-4.064, 19.05, 1270),
    (-4.064, 14.986, 1270),
    (-12.112, 14.986, 1270),
    (-3.883, 6.756, 1270),
    (3.883, 6.756, 1270),
    (12.112, 14.986, 1270),
    (4.064, 14.986, 1270),
    (4.064, 19.05, 1270),
    (19.05, 19.05, 1270),
    (19.05, 4.064, 1270),
    (14.986, 4.064, 1270),
    (14.986, 12.112, 1270),
    (6.756, 3.883, 1270),
    (6.756, -3.883, 1270),
    (14.986, -12.112, 1270),
    (14.986, -4.064, 1270),
    (19.05, -4.064, 1270),
    (19.05, -34.036, 1270),
    (14.986, -34.036, 1270),
    (14.986, -25.988, 1270),
    (6.756, -34.217, 1270),
    (6.756, -41.983, 1270),
    (14.986, -50.212, 1270),
    (14.986, -42.164, 1270),
    (19.05, -42.164, 1270),
    (19.05, -72.136, 1270),
    (14.986, -72.136, 1270),
    (14.986, -64.088, 1270),
    (6.756, -72.317, 1270),
    (6.756, -80.083, 1270),
    (14.986, -88.312, 1270),
    (14.986, -80.264, 1270),
    (19.05, -80.264, 1270),
    (19.05, -95.25, 1270),
    (4.064, -95.25, 1270),
    (4.064, -91.186, 1270),
    (12.112, -91.186, 1270),
    (3.883, -82.956, 1270),
    (-3.883, -82.956, 1270),
    (-12.112, -91.186, 1270),
    (-4.064, -91.186, 1270),
    (-4.064, -95.25, 1270),
    (-19.05, -95.25, 1270),
    (-19.05, -80.264, 1270),
    (-14.986, -80.264, 1270),
    (-14.986, -88.312, 1270),
    (-6.756, -80.083, 1270),
    (-6.756, -72.317, 1270),
    (-14.986, -64.088, 1270),
    (-14.986, -72.136, 1270),
    (-19.05, -72.136, 1270),
    (-19.05, -42.164, 1270),
    (-14.986, -42.164, 1270),
    (-14.986, -50.212, 1270),
    (-6.756, -41.983, 1270),
    (-6.756, -34.217, 1270),
    (-14.986, -25.988, 1270),
    (-14.986, -34.036, 1270),
    (-19.05, -34.036, 1270),
    (-19.05, -4.064, 1270),
    (-14.986, -4.064, 1270),
    (-14.986, -12.112, 1270),
    (-6.756, -3.883, 1270),
    (-6.756, 3.883, 1270),
    (-14.986, 12.112, 1270),
    (-14.986, 4.064, 1270),
    (-19.05, 4.064, 1270),
    (14.986, -20.24, 1270),
    (14.986, -17.86, 1270),
    (3.883, -6.756, 1270),
    (-3.883, -6.756, 1270),
    (-14.986, -17.86, 1270),
    (-14.986, -20.24, 1270),
    (-3.883, -31.344, 1270),
    (3.883, -31.344, 1270),
    (3.883, -69.444, 1270),
    (14.986, -58.34, 1270),
    (14.986, -55.96, 1270),
    (3.883, -44.856, 1270),
    (-3.883, -44.856, 1270),
    (-14.986, -55.96, 1270),
    (-14.986, -58.34, 1270),
    (-3.883, -69.444, 1270),
]))
fillet.setExpression("Radius", "Params.fillet_radius")

doc.recompute()
